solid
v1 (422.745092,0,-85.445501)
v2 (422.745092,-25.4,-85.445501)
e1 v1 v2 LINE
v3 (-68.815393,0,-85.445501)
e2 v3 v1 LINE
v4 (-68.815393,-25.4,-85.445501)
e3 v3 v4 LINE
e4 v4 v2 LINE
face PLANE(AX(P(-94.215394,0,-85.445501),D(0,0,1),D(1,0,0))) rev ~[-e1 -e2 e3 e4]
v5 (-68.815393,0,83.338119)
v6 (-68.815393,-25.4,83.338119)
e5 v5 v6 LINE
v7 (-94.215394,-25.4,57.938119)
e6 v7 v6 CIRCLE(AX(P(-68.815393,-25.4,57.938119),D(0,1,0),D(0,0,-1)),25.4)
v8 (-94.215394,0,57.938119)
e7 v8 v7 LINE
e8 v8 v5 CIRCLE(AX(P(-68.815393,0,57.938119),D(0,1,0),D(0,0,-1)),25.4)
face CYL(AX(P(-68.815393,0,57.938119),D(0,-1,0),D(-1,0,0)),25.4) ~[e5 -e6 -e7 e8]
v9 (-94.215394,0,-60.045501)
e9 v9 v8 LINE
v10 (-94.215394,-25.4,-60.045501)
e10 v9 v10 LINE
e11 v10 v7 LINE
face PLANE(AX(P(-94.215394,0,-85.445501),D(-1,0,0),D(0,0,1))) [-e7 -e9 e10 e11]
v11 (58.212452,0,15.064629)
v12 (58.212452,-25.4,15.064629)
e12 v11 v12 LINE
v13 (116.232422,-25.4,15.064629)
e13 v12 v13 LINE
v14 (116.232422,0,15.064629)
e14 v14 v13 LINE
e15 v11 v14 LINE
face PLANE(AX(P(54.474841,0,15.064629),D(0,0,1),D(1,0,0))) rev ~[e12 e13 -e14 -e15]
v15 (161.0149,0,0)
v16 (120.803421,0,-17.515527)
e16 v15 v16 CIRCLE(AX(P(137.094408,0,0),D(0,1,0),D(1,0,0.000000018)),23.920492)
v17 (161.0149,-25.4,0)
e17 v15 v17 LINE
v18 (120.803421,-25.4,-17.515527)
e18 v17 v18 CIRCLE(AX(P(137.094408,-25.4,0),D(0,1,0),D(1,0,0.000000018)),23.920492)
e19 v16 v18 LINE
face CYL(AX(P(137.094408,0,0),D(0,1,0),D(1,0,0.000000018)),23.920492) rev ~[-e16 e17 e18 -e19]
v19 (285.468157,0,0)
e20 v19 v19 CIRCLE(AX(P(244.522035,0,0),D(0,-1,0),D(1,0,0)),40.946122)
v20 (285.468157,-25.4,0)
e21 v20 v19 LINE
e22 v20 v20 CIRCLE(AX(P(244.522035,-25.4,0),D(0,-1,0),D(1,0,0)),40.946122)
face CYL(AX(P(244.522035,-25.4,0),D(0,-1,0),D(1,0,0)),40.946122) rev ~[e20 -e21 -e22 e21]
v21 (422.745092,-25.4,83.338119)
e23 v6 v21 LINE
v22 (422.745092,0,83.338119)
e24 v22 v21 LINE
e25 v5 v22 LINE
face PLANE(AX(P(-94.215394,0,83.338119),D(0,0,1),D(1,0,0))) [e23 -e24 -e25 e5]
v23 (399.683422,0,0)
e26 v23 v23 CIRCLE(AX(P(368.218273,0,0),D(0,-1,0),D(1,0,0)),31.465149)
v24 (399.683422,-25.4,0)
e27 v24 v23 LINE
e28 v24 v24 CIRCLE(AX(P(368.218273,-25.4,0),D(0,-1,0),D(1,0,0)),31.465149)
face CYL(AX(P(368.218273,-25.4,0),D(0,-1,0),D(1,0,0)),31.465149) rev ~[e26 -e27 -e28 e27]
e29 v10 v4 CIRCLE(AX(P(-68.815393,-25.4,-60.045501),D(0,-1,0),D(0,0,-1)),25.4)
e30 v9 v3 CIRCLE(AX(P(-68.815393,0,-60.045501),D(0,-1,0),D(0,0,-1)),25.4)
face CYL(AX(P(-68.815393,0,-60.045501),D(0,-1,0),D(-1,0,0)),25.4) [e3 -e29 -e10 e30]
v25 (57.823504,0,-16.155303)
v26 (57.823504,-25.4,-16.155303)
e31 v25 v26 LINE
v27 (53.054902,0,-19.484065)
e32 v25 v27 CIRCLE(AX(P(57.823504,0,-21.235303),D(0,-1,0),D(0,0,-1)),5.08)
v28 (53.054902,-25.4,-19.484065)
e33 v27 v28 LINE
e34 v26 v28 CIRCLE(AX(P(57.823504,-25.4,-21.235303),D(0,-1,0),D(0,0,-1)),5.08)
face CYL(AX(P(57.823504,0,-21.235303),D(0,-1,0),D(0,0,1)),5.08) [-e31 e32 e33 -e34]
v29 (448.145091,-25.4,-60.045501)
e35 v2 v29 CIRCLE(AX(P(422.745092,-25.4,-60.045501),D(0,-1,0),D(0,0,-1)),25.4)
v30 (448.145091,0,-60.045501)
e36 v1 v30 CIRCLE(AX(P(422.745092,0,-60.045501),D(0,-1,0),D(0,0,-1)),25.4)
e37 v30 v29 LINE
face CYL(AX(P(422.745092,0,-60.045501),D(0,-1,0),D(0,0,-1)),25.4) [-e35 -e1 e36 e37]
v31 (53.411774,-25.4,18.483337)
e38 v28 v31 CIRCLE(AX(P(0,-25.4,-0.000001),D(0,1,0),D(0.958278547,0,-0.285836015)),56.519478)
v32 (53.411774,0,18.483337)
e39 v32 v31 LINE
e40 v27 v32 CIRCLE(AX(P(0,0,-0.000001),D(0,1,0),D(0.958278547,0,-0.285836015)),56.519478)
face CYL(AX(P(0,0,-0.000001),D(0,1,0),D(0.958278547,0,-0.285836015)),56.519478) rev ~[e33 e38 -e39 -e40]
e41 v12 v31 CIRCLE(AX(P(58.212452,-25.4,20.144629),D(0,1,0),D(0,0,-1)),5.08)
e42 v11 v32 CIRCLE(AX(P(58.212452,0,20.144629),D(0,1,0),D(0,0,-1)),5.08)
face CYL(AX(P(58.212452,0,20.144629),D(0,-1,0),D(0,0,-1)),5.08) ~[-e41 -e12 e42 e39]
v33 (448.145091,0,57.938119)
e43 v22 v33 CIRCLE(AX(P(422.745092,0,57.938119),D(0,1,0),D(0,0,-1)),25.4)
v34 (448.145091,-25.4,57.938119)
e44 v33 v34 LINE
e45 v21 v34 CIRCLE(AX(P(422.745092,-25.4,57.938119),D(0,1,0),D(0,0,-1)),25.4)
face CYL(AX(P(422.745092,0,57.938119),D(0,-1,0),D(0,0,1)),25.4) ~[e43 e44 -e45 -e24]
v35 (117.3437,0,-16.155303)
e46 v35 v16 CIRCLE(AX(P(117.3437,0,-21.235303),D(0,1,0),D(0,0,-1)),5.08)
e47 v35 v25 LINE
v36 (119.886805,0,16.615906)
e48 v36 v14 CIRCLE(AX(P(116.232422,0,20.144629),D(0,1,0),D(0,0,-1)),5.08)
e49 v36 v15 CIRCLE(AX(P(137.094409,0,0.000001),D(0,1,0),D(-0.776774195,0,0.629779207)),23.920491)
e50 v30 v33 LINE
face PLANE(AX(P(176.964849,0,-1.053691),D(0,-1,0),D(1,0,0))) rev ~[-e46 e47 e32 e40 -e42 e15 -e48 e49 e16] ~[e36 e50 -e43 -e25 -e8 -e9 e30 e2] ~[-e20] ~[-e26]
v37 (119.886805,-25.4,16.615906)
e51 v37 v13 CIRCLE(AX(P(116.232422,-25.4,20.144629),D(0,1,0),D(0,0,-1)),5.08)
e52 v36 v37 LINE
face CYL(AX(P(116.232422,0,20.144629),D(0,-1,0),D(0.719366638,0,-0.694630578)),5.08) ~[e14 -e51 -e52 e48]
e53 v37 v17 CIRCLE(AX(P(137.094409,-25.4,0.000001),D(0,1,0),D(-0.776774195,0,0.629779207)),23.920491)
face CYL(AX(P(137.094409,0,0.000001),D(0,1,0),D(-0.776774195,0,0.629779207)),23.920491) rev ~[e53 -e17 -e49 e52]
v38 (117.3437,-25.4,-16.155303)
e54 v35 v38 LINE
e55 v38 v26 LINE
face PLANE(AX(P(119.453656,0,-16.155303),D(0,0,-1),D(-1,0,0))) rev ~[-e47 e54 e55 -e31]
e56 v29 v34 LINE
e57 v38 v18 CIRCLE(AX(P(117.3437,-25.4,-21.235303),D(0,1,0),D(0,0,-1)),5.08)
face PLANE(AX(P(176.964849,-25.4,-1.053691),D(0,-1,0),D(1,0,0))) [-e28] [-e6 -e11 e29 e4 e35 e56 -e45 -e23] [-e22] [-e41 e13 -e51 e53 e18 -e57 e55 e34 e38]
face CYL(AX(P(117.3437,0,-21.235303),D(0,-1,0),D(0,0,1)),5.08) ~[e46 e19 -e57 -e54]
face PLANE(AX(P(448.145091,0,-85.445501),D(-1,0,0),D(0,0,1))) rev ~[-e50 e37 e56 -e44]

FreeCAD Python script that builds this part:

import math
import FreeCAD as App
import Part
import Sketcher
from FreeCAD import Vector
Q = App.Units.Quantity


def edges_at(feature, points):
    """Names of the edges that pass closest to the given points."""
    edges = feature.Shape.Edges
    near = lambda p: min(range(len(edges)), key=lambda i: edges[i].distToShape(Part.Vertex(*p))[0])
    return sorted({f"Edge{near(p) + 1}" for p in points})


def add_polygon(sketch, points):
    """Adds a closed chain of lines whose ends are joined by coincident constraints."""
    first, n = sketch.GeometryCount, len(points)
    for a, b in zip(points, points[1:] + points[:1]):
        sketch.addGeometry(Part.LineSegment(App.Vector(*a, 0), App.Vector(*b, 0)), False)
    for i in range(n):
        sketch.addConstraint(Sketcher.Constraint("Coincident", first + i, 2, first + (i + 1) % n, 1))

doc = App.newDocument("Part")
body = doc.addObject("PartDesign::Body", "Body")

# Sketch on XZ plane
sketch1 = body.newObject("Sketcher::SketchObject", "Sketch")
sketch1.AttachmentSupport = (doc.getObject("XZ_Plane"), [""])
sketch1.MapMode = "FlatFace"
add_polygon(sketch1, [(-94, 83), (-94, -85), (448, -85), (448, 83)])  # lines 0-3
sketch1.addGeometry(Part.LineSegment(Vector(119, -16, 0), Vector(54, -16, 0)), False)  # 4
sketch1.addGeometry(Part.ArcOfCircle(Part.Circle(Vector(0, 0, 0), Vector(0, 0, 1), 57), math.radians(15), math.radians(343)), False)  # 5
sketch1.addGeometry(Part.LineSegment(Vector(54, 15, 0), Vector(119, 15, 0)), False)  # 6
sketch1.addGeometry(Part.ArcOfCircle(Part.Circle(Vector(137, 0, 0), Vector(0, 0, 1), 24), math.radians(0), math.radians(141)), False)  # 7
sketch1.addGeometry(Part.ArcOfCircle(Part.Circle(Vector(137, 0, 0), Vector(0, 0, 1), 24), math.radians(-138), math.radians(0)), False)  # 8
sketch1.addConstraint([
    Sketcher.Constraint("Coincident", 4, 2, 5, 2),
    Sketcher.Constraint("Coincident", 5, 1, 6, 1),
    Sketcher.Constraint("Coincident", 6, 2, 7, 2),
    Sketcher.Constraint("Tangent", 7, 1, 8, 2),
    Sketcher.Constraint("Coincident", 8, 1, 4, 1),
    Sketcher.Constraint("Vertical", 0),
    Sketcher.Constraint("Horizontal", 1),
    Sketcher.Constraint("Vertical", 2),
    Sketcher.Constraint("Horizontal", 3),
    Sketcher.Constraint("Horizontal", 4),
    Sketcher.Constraint("Horizontal", 6),
    Sketcher.Constraint("Coincident", 5, 3, -1, 1),
    Sketcher.Constraint("Equal", 7, 8),
    Sketcher.Constraint("PointOnObject", 7, 3, -1),
    Sketcher.Constraint("PointOnObject", 7, 1, -1),
    Sketcher.Constraint("Radius", 5, 56.519478),
    Sketcher.Constraint("Radius", 7, 23.920491),
    Sketcher.Constraint("DistanceX", -1, 1, 8, 1, Q("4.7028998 in")),
    Sketcher.Constraint("DistanceY", 0, 2, 0, 1, 168.78362),
    Sketcher.Constraint("DistanceY", 0, 2, -1, 1, 85.445501),
    Sketcher.Constraint("DistanceX", -1, 1, 7, 1, 161.0149),
    Sketcher.Constraint("DistanceX", 0, 2, 8, 3, 231.309802),
    Sketcher.Constraint("DistanceX", 1, 1, 1, 2, 542.360485),
    Sketcher.Constraint("DistanceX", 6, 1, 6, 2, 64.038747),
])
pad1 = body.newObject("PartDesign::Pad", "Pad")
pad1.Profile = sketch1
pad1.Length = Q("1 in")
doc.recompute()

fillet = body.newObject("PartDesign::Fillet", "Fillet")
fillet.Base = (pad1, edges_at(pad1, [
    (448.145, -12.7, 83.338),
    (448.145, -12.7, -85.446),
    (-94.215, -12.7, 83.338),
    (-94.215, -12.7, -85.446),
]))
fillet.Radius = Q("1 in")
doc.recompute()

fillet2 = body.newObject("PartDesign::Fillet", "Fillet001")
fillet2.Base = (fillet, edges_at(fillet, [
    (54.475, -12.7, 15.065),
    (119.454, -12.7, -16.155),
    (54.161, -12.7, -16.155),
    (118.514, -12.7, 15.065),
]))
fillet2.Radius = Q("0.2 in")

# Sketch on XZ plane
sketch2 = body.newObject("Sketcher::SketchObject", "Sketch001")
sketch2.AttachmentSupport = (doc.getObject("XZ_Plane"), [""])
sketch2.MapMode = "FlatFace"
sketch2.AttachmentOffset = App.Placement(Vector(0, 0, 1 * 25.4), App.Rotation())
sketch2.addGeometry([
    Part.Circle(Vector(245, 0, 0), Vector(0, 0, 1), 41),
    Part.Circle(Vector(368, 0, 0), Vector(0, 0, 1), 31),
], False)
sketch2.addConstraint([
    Sketcher.Constraint("PointOnObject", 0, 3, -1),
    Sketcher.Constraint("PointOnObject", 1, 3, -1),
    Sketcher.Constraint("Diameter", 0, 81.892244),
    Sketcher.Constraint("Diameter", 1, 62.930298),
    Sketcher.Constraint("DistanceX", 0, 3, 1, 3, 123.696238),
    Sketcher.Constraint("DistanceX", -1, 1, 0, 3, 244.522035),
])
pocket1 = body.newObject("PartDesign::Pocket", "Pocket")
pocket1.Profile = sketch2
pocket1.Length = Q("1 in")

doc.recompute()
